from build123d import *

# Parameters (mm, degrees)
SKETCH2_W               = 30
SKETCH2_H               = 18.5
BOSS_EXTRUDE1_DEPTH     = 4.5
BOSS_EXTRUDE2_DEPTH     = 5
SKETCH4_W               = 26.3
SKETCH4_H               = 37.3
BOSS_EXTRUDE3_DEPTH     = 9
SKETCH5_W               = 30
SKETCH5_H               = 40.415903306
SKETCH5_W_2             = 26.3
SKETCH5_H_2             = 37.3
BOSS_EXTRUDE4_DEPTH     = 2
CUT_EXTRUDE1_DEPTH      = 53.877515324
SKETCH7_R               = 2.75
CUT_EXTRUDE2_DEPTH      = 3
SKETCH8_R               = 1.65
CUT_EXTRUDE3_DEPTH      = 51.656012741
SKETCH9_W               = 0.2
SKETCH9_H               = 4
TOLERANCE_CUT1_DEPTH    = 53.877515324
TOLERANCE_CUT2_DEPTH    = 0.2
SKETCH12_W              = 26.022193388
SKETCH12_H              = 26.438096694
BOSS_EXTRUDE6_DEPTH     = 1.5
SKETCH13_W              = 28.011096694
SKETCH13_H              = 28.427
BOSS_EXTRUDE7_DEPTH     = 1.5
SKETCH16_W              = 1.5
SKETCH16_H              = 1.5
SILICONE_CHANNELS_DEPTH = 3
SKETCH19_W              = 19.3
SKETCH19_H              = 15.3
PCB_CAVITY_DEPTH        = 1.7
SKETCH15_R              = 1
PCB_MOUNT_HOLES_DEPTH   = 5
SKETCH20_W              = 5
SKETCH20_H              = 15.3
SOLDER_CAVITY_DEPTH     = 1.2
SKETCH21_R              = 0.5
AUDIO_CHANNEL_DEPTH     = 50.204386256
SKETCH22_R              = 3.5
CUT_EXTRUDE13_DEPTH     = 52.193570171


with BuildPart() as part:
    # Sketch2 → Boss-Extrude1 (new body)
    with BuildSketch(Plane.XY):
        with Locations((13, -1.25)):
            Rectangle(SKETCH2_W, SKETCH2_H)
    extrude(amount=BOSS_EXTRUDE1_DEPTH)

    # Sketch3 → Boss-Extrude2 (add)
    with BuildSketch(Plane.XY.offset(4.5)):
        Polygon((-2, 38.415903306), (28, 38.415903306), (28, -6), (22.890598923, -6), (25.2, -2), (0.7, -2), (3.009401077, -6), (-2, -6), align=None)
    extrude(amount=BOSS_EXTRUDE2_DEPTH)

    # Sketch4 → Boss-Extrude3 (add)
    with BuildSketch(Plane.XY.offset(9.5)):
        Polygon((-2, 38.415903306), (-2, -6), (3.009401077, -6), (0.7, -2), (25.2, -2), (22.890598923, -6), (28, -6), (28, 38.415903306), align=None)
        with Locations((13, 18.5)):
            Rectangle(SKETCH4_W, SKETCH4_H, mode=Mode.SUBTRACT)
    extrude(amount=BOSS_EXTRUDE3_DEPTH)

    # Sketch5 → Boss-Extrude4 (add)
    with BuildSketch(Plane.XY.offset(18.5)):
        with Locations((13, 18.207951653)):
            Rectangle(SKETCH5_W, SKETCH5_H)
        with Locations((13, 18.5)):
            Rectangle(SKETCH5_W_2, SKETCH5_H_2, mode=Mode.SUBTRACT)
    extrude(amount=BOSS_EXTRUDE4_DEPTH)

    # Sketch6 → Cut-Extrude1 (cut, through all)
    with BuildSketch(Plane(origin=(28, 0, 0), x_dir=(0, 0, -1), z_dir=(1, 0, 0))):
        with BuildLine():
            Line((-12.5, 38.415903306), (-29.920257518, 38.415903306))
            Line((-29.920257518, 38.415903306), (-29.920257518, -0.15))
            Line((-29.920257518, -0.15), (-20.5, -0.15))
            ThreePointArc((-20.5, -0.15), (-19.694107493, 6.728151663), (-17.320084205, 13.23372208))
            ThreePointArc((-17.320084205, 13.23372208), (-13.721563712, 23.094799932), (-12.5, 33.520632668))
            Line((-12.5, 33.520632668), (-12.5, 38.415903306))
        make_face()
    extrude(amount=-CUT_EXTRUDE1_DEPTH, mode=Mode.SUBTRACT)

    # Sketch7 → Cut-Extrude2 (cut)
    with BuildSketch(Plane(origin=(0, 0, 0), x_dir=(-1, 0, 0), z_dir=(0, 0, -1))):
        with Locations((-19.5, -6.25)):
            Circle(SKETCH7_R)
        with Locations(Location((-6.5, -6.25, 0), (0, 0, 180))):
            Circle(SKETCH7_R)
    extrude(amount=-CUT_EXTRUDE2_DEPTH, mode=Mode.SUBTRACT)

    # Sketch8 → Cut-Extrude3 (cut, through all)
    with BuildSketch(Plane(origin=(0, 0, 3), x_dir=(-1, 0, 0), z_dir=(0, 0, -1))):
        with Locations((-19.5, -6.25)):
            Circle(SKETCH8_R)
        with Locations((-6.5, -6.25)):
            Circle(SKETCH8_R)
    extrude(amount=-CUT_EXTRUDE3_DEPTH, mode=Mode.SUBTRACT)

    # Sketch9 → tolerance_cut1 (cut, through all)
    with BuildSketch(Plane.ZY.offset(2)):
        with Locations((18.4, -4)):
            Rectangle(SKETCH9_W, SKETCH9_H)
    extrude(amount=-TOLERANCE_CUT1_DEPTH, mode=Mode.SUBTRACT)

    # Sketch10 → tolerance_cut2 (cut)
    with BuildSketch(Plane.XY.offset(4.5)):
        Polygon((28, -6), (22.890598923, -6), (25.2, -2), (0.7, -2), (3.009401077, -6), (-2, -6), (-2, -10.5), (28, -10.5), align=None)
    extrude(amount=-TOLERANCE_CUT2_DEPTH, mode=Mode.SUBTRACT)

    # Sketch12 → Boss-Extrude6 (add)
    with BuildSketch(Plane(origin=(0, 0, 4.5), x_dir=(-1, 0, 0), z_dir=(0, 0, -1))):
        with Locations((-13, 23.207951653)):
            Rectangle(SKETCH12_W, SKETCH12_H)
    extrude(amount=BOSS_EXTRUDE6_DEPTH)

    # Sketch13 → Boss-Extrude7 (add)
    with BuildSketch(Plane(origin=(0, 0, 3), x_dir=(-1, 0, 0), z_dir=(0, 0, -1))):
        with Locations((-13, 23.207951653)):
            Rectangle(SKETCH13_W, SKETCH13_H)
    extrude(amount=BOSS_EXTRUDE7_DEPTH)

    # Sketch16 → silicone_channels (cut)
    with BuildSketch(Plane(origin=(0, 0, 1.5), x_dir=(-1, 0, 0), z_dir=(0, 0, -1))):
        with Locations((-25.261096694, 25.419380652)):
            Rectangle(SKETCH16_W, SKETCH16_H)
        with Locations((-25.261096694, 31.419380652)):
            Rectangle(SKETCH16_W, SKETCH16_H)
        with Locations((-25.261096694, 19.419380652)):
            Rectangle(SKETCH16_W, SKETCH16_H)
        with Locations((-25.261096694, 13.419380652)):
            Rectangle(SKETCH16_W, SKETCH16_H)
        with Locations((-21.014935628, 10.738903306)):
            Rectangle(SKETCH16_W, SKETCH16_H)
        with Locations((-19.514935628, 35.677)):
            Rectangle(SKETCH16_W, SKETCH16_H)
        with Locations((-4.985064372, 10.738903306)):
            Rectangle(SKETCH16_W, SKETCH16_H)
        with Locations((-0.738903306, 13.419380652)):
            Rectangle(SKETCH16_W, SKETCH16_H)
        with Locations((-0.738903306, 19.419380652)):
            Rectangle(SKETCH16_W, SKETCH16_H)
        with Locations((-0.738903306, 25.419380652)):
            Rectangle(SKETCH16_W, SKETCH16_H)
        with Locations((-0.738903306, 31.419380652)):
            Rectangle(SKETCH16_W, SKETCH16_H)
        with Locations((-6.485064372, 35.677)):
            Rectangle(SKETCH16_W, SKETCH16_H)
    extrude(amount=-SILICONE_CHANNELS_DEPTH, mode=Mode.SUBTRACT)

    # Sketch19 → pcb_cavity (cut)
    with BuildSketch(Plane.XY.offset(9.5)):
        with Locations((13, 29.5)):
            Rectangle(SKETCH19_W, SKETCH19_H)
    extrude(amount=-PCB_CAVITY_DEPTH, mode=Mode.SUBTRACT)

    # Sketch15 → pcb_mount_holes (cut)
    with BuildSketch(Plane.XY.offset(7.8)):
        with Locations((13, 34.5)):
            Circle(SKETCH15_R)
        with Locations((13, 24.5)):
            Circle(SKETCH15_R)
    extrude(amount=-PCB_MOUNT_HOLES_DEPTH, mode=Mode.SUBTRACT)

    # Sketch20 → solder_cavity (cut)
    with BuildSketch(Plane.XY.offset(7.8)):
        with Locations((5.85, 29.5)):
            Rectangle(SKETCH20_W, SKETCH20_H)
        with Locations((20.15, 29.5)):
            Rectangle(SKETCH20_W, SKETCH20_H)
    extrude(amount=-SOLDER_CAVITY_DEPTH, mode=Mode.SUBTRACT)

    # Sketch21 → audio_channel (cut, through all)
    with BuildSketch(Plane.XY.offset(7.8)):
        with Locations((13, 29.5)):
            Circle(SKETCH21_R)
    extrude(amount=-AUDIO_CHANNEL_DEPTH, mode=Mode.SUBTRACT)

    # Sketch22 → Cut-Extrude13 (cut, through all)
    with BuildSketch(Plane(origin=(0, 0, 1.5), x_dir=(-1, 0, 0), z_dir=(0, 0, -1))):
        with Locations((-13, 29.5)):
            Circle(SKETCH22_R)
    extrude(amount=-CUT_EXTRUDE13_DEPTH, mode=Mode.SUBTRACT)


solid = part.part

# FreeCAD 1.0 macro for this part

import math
import FreeCAD as App
import Part
import Sketcher
Q = App.Units.Quantity


def add_polygon(sketch, points):
    """Adds a closed chain of lines whose ends are joined by coincident constraints."""
    first, n = sketch.GeometryCount, len(points)
    for a, b in zip(points, points[1:] + points[:1]):
        sketch.addGeometry(Part.LineSegment(App.Vector(*a, 0), App.Vector(*b, 0)), False)
    for i in range(n):
        sketch.addConstraint(Sketcher.Constraint("Coincident", first + i, 2, first + (i + 1) % n, 1))

doc = App.newDocument("Part")
body = doc.addObject("PartDesign::Body", "Body")

sketch1 = body.newObject("Sketcher::SketchObject", "Sketch")
sketch1.AttachmentSupport = (doc.getObject("XY_Plane"), [""])
sketch1.MapMode = "FlatFace"
add_polygon(sketch1, [(-2, 8), (-2, -10.5), (28, -10.5), (28, 8)])
sketch1.addConstraint([
    Sketcher.Constraint("Vertical", 0),
    Sketcher.Constraint("Horizontal", 1),
    Sketcher.Constraint("Vertical", 2),
    Sketcher.Constraint("Horizontal", 3),
    Sketcher.Constraint("DistanceX", 1, 1, 1, 2, 30.0),
    Sketcher.Constraint("DistanceY", 0, 2, 0, 1, 18.5),
    Sketcher.Constraint("DistanceX", 0, 2, -1, 1, 2.0),
    Sketcher.Constraint("DistanceY", -1, 1, 2, 2, 8.0),
])
pad1 = body.newObject("PartDesign::Pad", "Pad")
pad1.Profile = sketch1
pad1.Length = 4.5

sketch2 = body.newObject("Sketcher::SketchObject", "Sketch001")
sketch2.AttachmentSupport = (doc.getObject("XY_Plane"), [""])
sketch2.MapMode = "FlatFace"
sketch2.AttachmentOffset = App.Placement(App.Vector(0, 0, 4.5), App.Rotation())
add_polygon(sketch2, [(28, 38.415903), (-2, 38.415903), (-2, -6), (3.009401, -6), (0.7, -2), (25.2, -2), (22.890599, -6), (28, -6)])
sketch2.addConstraint([
    Sketcher.Constraint("Horizontal", 0),
    Sketcher.Constraint("Vertical", 1),
    Sketcher.Constraint("Horizontal", 2),
    Sketcher.Constraint("Horizontal", 4),
    Sketcher.Constraint("Horizontal", 6),
    Sketcher.Constraint("Vertical", 7),
    Sketcher.Constraint("Horizontal", 2, 2, 5, 2),
    Sketcher.Constraint("Equal", 3, 5),
    Sketcher.Constraint("DistanceX", 0, 2, 0, 1, 30.0),
    Sketcher.Constraint("Angle", 3, Q("120 deg")),
    Sketcher.Constraint("DistanceX", 4, 1, 4, 2, 24.5),
    Sketcher.Constraint("DistanceX", 0, 2, -1, 1, 2.0),
    Sketcher.Constraint("DistanceY", 1, 2, -1, 1, 6.0),
    Sketcher.Constraint("DistanceY", 3, 2, -1, 1, 2.0),
    Sketcher.Constraint("DistanceX", -1, 1, 3, 2, 0.7),
    Sketcher.Constraint("DistanceY", 1, 2, 1, 1, 44.415903),
])
pad2 = body.newObject("PartDesign::Pad", "Pad001")
pad2.Profile = sketch2
pad2.Length = 5

sketch3 = body.newObject("Sketcher::SketchObject", "Sketch002")
sketch3.AttachmentSupport = (doc.getObject("XY_Plane"), [""])
sketch3.MapMode = "FlatFace"
sketch3.AttachmentOffset = App.Placement(App.Vector(0, 0, 9.5), App.Rotation())
add_polygon(sketch3, [(-2, 38.415903), (-2, -6), (3.009401, -6), (0.7, -2), (25.2, -2), (22.890599, -6), (28, -6), (28, 38.415903)])
add_polygon(sketch3, [(26.15, -0.15), (-0.15, -0.15), (-0.15, 37.15), (26.15, 37.15)])
sketch3.addConstraint([
    Sketcher.Constraint("Vertical", 0),
    Sketcher.Constraint("Horizontal", 1),
    Sketcher.Constraint("Horizontal", 3),
    Sketcher.Constraint("Horizontal", 5),
    Sketcher.Constraint("Vertical", 6),
    Sketcher.Constraint("Horizontal", 7),
    Sketcher.Constraint("Horizontal", 8),
    Sketcher.Constraint("Vertical", 9),
    Sketcher.Constraint("Horizontal", 10),
    Sketcher.Constraint("Vertical", 11),
    Sketcher.Constraint("Horizontal", 1, 2, 4, 2),
    Sketcher.Constraint("Equal", 2, 4),
    Sketcher.Constraint("DistanceX", 7, 2, 7, 1, 30.0),
    Sketcher.Constraint("Angle", 2, Q("120 deg")),
    Sketcher.Constraint("DistanceX", 3, 1, 3, 2, 24.5),
    Sketcher.Constraint("DistanceX", 8, 2, 8, 1, 26.3),
    Sketcher.Constraint("DistanceY", 9, 1, 9, 2, 37.3),
    Sketcher.Constraint("DistanceX", 0, 2, -1, 1, 2.0),
    Sketcher.Constraint("DistanceY", 0, 2, -1, 1, 6.0),
    Sketcher.Constraint("DistanceY", 2, 2, -1, 1, 2.0),
    Sketcher.Constraint("DistanceX", -1, 1, 2, 2, 0.7),
    Sketcher.Constraint("DistanceX", 8, 2, -1, 1, 0.15),
    Sketcher.Constraint("DistanceY", 8, 2, -1, 1, 0.15),
    Sketcher.Constraint("DistanceY", 0, 2, 0, 1, 44.415903),
])
pad3 = body.newObject("PartDesign::Pad", "Pad002")
pad3.Profile = sketch3
pad3.Length = 9

sketch4 = body.newObject("Sketcher::SketchObject", "Sketch003")
sketch4.AttachmentSupport = (doc.getObject("XY_Plane"), [""])
sketch4.MapMode = "FlatFace"
sketch4.AttachmentOffset = App.Placement(App.Vector(0, 0, 18.5), App.Rotation())
add_polygon(sketch4, [(-2, 38.415903), (-2, -2), (28, -2), (28, 38.415903)])
add_polygon(sketch4, [(26.15, -0.15), (-0.15, -0.15), (-0.15, 37.15), (26.15, 37.15)])
sketch4.addConstraint([
    Sketcher.Constraint("Vertical", 0),
    Sketcher.Constraint("Horizontal", 1),
    Sketcher.Constraint("Vertical", 2),
    Sketcher.Constraint("Horizontal", 3),
    Sketcher.Constraint("Horizontal", 4),
    Sketcher.Constraint("Vertical", 5),
    Sketcher.Constraint("Horizontal", 6),
    Sketcher.Constraint("Vertical", 7),
    Sketcher.Constraint("DistanceX", 1, 1, 1, 2, 30.0),
    Sketcher.Constraint("DistanceX", 4, 2, 4, 1, 26.3),
    Sketcher.Constraint("DistanceY", 5, 1, 5, 2, 37.3),
    Sketcher.Constraint("DistanceX", 0, 2, -1, 1, 2.0),
    Sketcher.Constraint("DistanceY", 0, 2, -1, 1, 2.0),
    Sketcher.Constraint("DistanceX", 4, 2, -1, 1, 0.15),
    Sketcher.Constraint("DistanceY", 4, 2, -1, 1, 0.15),
    Sketcher.Constraint("DistanceY", 0, 2, 0, 1, 40.415903),
])
pad4 = body.newObject("PartDesign::Pad", "Pad003")
pad4.Profile = sketch4
pad4.Length = 2

sketch5 = body.newObject("Sketcher::SketchObject", "Sketch004")
sketch5.AttachmentSupport = (doc.getObject("YZ_Plane"), [""])
sketch5.MapMode = "FlatFace"
sketch5.AttachmentOffset = App.Placement(App.Vector(0, 0, 28), App.Rotation())
sketch5.addGeometry([
    Part.LineSegment(App.Vector(38.415903, 12.5, 0), App.Vector(38.415903, 29.920258, 0)),
    Part.LineSegment(App.Vector(38.415903, 29.920258, 0), App.Vector(-0.15, 29.920258, 0)),
    Part.LineSegment(App.Vector(-0.15, 29.920258, 0), App.Vector(-0.15, 20.5, 0)),
    Part.ArcOfCircle(Part.Circle(App.Vector(-0.15, -9.254857, 0), App.Vector(0, 0, 1), 29.754857), math.radians(63.269175), math.radians(90)),
    Part.ArcOfCircle(Part.Circle(App.Vector(33.520633, 57.602112, 0), App.Vector(0, 0, 1), 45.102112), math.radians(-116.730825), math.radians(-90)),
    Part.LineSegment(App.Vector(33.520633, 12.5, 0), App.Vector(38.415903, 12.5, 0)),
], False)
sketch5.addConstraint([
    Sketcher.Constraint("Coincident", 0, 2, 1, 1),
    Sketcher.Constraint("Coincident", 1, 2, 2, 1),
    Sketcher.Constraint("Coincident", 2, 2, 3, 2),
    Sketcher.Constraint("Tangent", 3, 1, 4, 1),
    Sketcher.Constraint("Tangent", 4, 2, 5, 1),
    Sketcher.Constraint("Coincident", 5, 2, 0, 1),
    Sketcher.Constraint("Vertical", 0),
    Sketcher.Constraint("Horizontal", 1),
    Sketcher.Constraint("Vertical", 2),
    Sketcher.Constraint("Horizontal", 5),
    Sketcher.Constraint("Vertical", 3, 3, 1, 2),
    Sketcher.Constraint("DistanceY", 4, 2, 2, 2, 8.0),
    Sketcher.Constraint("DistanceY", -1, 1, 2, 2, 20.5),
    Sketcher.Constraint("DistanceX", 3, 3, -1, 1, 0.15),
    Sketcher.Constraint("Radius", 4, 45.102112),
    Sketcher.Constraint("Radius", 3, 29.754857),
    Sketcher.Constraint("DistanceX", 5, 1, 5, 2, 4.895271),
    Sketcher.Constraint("DistanceY", 0, 1, 0, 2, 17.420258),
])
pocket1 = body.newObject("PartDesign::Pocket", "Pocket")
pocket1.Profile = sketch5
pocket1.Type = "ThroughAll"

sketch6 = body.newObject("Sketcher::SketchObject", "Sketch005")
sketch6.AttachmentSupport = (doc.getObject("XY_Plane"), [""])
sketch6.MapMode = "FlatFace"
sketch6.addGeometry([
    Part.Circle(App.Vector(19.5, -6.25, 0), App.Vector(0, 0, 1), 2.75),
    Part.Circle(App.Vector(6.5, -6.25, 0), App.Vector(0, 0, 1), 2.75),
], False)
sketch6.addConstraint([
    Sketcher.Constraint("Equal", 0, 1),
    Sketcher.Constraint("Horizontal", 0, 3, 1, 3),
    Sketcher.Constraint("Diameter", 0, 5.5),
    Sketcher.Constraint("DistanceX", 1, 3, 0, 3, 13.0),
    Sketcher.Constraint("DistanceX", -1, 1, 0, 3, 19.5),
    Sketcher.Constraint("DistanceY", 0, 3, -1, 1, 6.25),
])
pocket2 = body.newObject("PartDesign::Pocket", "Pocket001")
pocket2.Profile = sketch6
pocket2.Length = 3
pocket2.Reversed = True

sketch7 = body.newObject("Sketcher::SketchObject", "Sketch006")
sketch7.AttachmentSupport = (doc.getObject("XY_Plane"), [""])
sketch7.MapMode = "FlatFace"
sketch7.AttachmentOffset = App.Placement(App.Vector(0, 0, 3), App.Rotation())
sketch7.addGeometry([
    Part.Circle(App.Vector(19.5, -6.25, 0), App.Vector(0, 0, 1), 1.65),
    Part.Circle(App.Vector(6.5, -6.25, 0), App.Vector(0, 0, 1), 1.65),
], False)
sketch7.addConstraint([
    Sketcher.Constraint("Equal", 0, 1),
    Sketcher.Constraint("Horizontal", 0, 3, 1, 3),
    Sketcher.Constraint("Diameter", 0, 3.3),
    Sketcher.Constraint("DistanceX", 1, 3, 0, 3, 13.0),
    Sketcher.Constraint("DistanceX", -1, 1, 0, 3, 19.5),
    Sketcher.Constraint("DistanceY", 0, 3, -1, 1, 6.25),
])
pocket3 = body.newObject("PartDesign::Pocket", "Pocket002")
pocket3.Profile = sketch7
pocket3.Type = "ThroughAll"
pocket3.Reversed = True

sketch8 = body.newObject("Sketcher::SketchObject", "Sketch007")
sketch8.AttachmentSupport = (doc.getObject("YZ_Plane"), [""])
sketch8.MapMode = "FlatFace"
sketch8.AttachmentOffset = App.Placement(App.Vector(0, 0, -2), App.Rotation())
add_polygon(sketch8, [(-2, 18.3), (-6, 18.3), (-6, 18.5), (-2, 18.5)])
sketch8.addConstraint([
    Sketcher.Constraint("Horizontal", 0),
    Sketcher.Constraint("Vertical", 1),
    Sketcher.Constraint("Horizontal", 2),
    Sketcher.Constraint("Vertical", 3),
    Sketcher.Constraint("DistanceX", 0, 2, 0, 1, 4.0),
    Sketcher.Constraint("DistanceY", 1, 1, 1, 2, 0.2),
    Sketcher.Constraint("DistanceX", 0, 2, -1, 1, 6.0),
    Sketcher.Constraint("DistanceY", -1, 1, 0, 2, 18.3),
])
pocket4 = body.newObject("PartDesign::Pocket", "Pocket003")
pocket4.Profile = sketch8
pocket4.Type = "ThroughAll"
pocket4.Reversed = True

sketch9 = body.newObject("Sketcher::SketchObject", "Sketch008")
sketch9.AttachmentSupport = (doc.getObject("XY_Plane"), [""])
sketch9.MapMode = "FlatFace"
sketch9.AttachmentOffset = App.Placement(App.Vector(0, 0, 4.5), App.Rotation())
add_polygon(sketch9, [(28, -6), (22.890599, -6), (25.2, -2), (0.7, -2), (3.009401, -6), (-2, -6), (-2, -10.5), (28, -10.5)])
sketch9.addConstraint([
    Sketcher.Constraint("Horizontal", 0),
    Sketcher.Constraint("Horizontal", 2),
    Sketcher.Constraint("Horizontal", 4),
    Sketcher.Constraint("Vertical", 5),
    Sketcher.Constraint("Horizontal", 6),
    Sketcher.Constraint("Vertical", 7),
    Sketcher.Constraint("Horizontal", 0, 2, 3, 2),
    Sketcher.Constraint("Equal", 1, 3),
    Sketcher.Constraint("DistanceX", 6, 1, 6, 2, 30.0),
    Sketcher.Constraint("Angle", 1, Q("60 deg")),
    Sketcher.Constraint("DistanceX", 2, 2, 2, 1, 24.5),
    Sketcher.Constraint("DistanceY", 5, 2, 5, 1, 4.5),
    Sketcher.Constraint("DistanceY", 0, 2, -1, 1, 6.0),
    Sketcher.Constraint("DistanceY", 1, 2, -1, 1, 2.0),
    Sketcher.Constraint("DistanceX", 4, 2, -1, 1, 2.0),
    Sketcher.Constraint("DistanceX", -1, 1, 1, 2, 25.2),
])
pocket5 = body.newObject("PartDesign::Pocket", "Pocket004")
pocket5.Profile = sketch9
pocket5.Length = 0.2

sketch10 = body.newObject("Sketcher::SketchObject", "Sketch009")
sketch10.AttachmentSupport = (doc.getObject("XY_Plane"), [""])
sketch10.MapMode = "FlatFace"
sketch10.AttachmentOffset = App.Placement(App.Vector(0, 0, 4.5), App.Rotation())
add_polygon(sketch10, [(26.011097, 36.427), (26.011097, 9.988903), (-0.011097, 9.988903), (-0.011097, 36.427)])
sketch10.addConstraint([
    Sketcher.Constraint("Vertical", 0),
    Sketcher.Constraint("Horizontal", 1),
    Sketcher.Constraint("Vertical", 2),
    Sketcher.Constraint("Horizontal", 3),
    Sketcher.Constraint("DistanceY", -1, 1, 2, 2, 36.427),
    Sketcher.Constraint("DistanceX", 1, 2, 1, 1, 26.022193),
    Sketcher.Constraint("DistanceY", 0, 2, 0, 1, 26.438097),
    Sketcher.Constraint("DistanceX", -1, 1, 0, 2, 26.011097),
])
pad5 = body.newObject("PartDesign::Pad", "Pad004")
pad5.Profile = sketch10
pad5.Length = 1.5
pad5.Reversed = True

sketch11 = body.newObject("Sketcher::SketchObject", "Sketch010")
sketch11.AttachmentSupport = (doc.getObject("XY_Plane"), [""])
sketch11.MapMode = "FlatFace"
sketch11.AttachmentOffset = App.Placement(App.Vector(0, 0, 3), App.Rotation())
add_polygon(sketch11, [(27.005548, 37.421452), (27.005548, 8.994452), (-1.005548, 8.994452), (-1.005548, 37.421452)])
sketch11.addConstraint([
    Sketcher.Constraint("Vertical", 0),
    Sketcher.Constraint("Horizontal", 1),
    Sketcher.Constraint("Vertical", 2),
    Sketcher.Constraint("Horizontal", 3),
    Sketcher.Constraint("DistanceY", 0, 2, 0, 1, 28.427),
    Sketcher.Constraint("DistanceX", 1, 2, 1, 1, 28.011097),
    Sketcher.Constraint("DistanceX", -1, 1, 0, 2, 27.005548),
    Sketcher.Constraint("DistanceY", -1, 1, 0, 2, 8.994452),
])
pad6 = body.newObject("PartDesign::Pad", "Pad005")
pad6.Profile = sketch11
pad6.Length = 1.5
pad6.Reversed = True

sketch12 = body.newObject("Sketcher::SketchObject", "Sketch011")
sketch12.AttachmentSupport = (doc.getObject("XY_Plane"), [""])
sketch12.MapMode = "FlatFace"
sketch12.AttachmentOffset = App.Placement(App.Vector(0, 0, 1.5), App.Rotation())
add_polygon(sketch12, [(26.011097, 26.169381), (26.011097, 24.669381), (24.511097, 24.669381), (24.511097, 26.169381)])
add_polygon(sketch12, [(26.011097, 32.169381), (26.011097, 30.669381), (24.511097, 30.669381), (24.511097, 32.169381)])
add_polygon(sketch12, [(26.011097, 20.169381), (26.011097, 18.669381), (24.511097, 18.669381), (24.511097, 20.169381)])
add_polygon(sketch12, [(26.011097, 14.169381), (26.011097, 12.669381), (24.511097, 12.669381), (24.511097, 14.169381)])
add_polygon(sketch12, [(21.764936, 11.488903), (21.764936, 9.988903), (20.264936, 9.988903), (20.264936, 11.488903)])
add_polygon(sketch12, [(20.264936, 36.427), (20.264936, 34.927), (18.764936, 34.927), (18.764936, 36.427)])
add_polygon(sketch12, [(5.735064, 11.488903), (5.735064, 9.988903), (4.235064, 9.988903), (4.235064, 11.488903)])
add_polygon(sketch12, [(1.488903, 14.169381), (1.488903, 12.669381), (-0.011097, 12.669381), (-0.011097, 14.169381)])
add_polygon(sketch12, [(1.488903, 20.169381), (1.488903, 18.669381), (-0.011097, 18.669381), (-0.011097, 20.169381)])
add_polygon(sketch12, [(1.488903, 26.169381), (1.488903, 24.669381), (-0.011097, 24.669381), (-0.011097, 26.169381)])
add_polygon(sketch12, [(1.488903, 32.169381), (1.488903, 30.669381), (-0.011097, 30.669381), (-0.011097, 32.169381)])
add_polygon(sketch12, [(7.235064, 36.427), (7.235064, 34.927), (5.735064, 34.927), (5.735064, 36.427)])
sketch12.addConstraint([
    Sketcher.Constraint("Vertical", 0),
    Sketcher.Constraint("Horizontal", 1),
    Sketcher.Constraint("Vertical", 2),
    Sketcher.Constraint("Horizontal", 3),
    Sketcher.Constraint("Vertical", 4),
    Sketcher.Constraint("Horizontal", 5),
    Sketcher.Constraint("Vertical", 6),
    Sketcher.Constraint("Horizontal", 7),
    Sketcher.Constraint("Vertical", 8),
    Sketcher.Constraint("Horizontal", 9),
    Sketcher.Constraint("Vertical", 10),
    Sketcher.Constraint("Horizontal", 11),
    Sketcher.Constraint("Vertical", 12),
    Sketcher.Constraint("Horizontal", 13),
    Sketcher.Constraint("Vertical", 14),
    Sketcher.Constraint("Horizontal", 15),
    Sketcher.Constraint("Vertical", 16),
    Sketcher.Constraint("Horizontal", 17),
    Sketcher.Constraint("Vertical", 18),
    Sketcher.Constraint("Horizontal", 19),
    Sketcher.Constraint("Vertical", 20),
    Sketcher.Constraint("Horizontal", 21),
    Sketcher.Constraint("Vertical", 22),
    Sketcher.Constraint("Horizontal", 23),
    Sketcher.Constraint("Vertical", 24),
    Sketcher.Constraint("Horizontal", 25),
    Sketcher.Constraint("Vertical", 26),
    Sketcher.Constraint("Horizontal", 27),
    Sketcher.Constraint("Vertical", 28),
    Sketcher.Constraint("Horizontal", 29),
    Sketcher.Constraint("Vertical", 30),
    Sketcher.Constraint("Horizontal", 31),
    Sketcher.Constraint("Vertical", 32),
    Sketcher.Constraint("Horizontal", 33),
    Sketcher.Constraint("Vertical", 34),
    Sketcher.Constraint("Horizontal", 35),
    Sketcher.Constraint("Vertical", 36),
    Sketcher.Constraint("Horizontal", 37),
    Sketcher.Constraint("Vertical", 38),
    Sketcher.Constraint("Horizontal", 39),
    Sketcher.Constraint("Vertical", 40),
    Sketcher.Constraint("Horizontal", 41),
    Sketcher.Constraint("Vertical", 42),
    Sketcher.Constraint("Horizontal", 43),
    Sketcher.Constraint("Vertical", 44),
    Sketcher.Constraint("Horizontal", 45),
    Sketcher.Constraint("Vertical", 46),
    Sketcher.Constraint("Horizontal", 47),
    Sketcher.Constraint("Horizontal", 17, 2, 24, 2),
    Sketcher.Constraint("Horizontal", 19, 2, 26, 2),
    Sketcher.Constraint("Horizontal", 13, 2, 28, 2),
    Sketcher.Constraint("Horizontal", 15, 2, 30, 2),
    Sketcher.Constraint("Horizontal", 9, 2, 32, 2),
    Sketcher.Constraint("Horizontal", 11, 2, 34, 2),
    Sketcher.Constraint("Horizontal", 1, 2, 36, 2),
    Sketcher.Constraint("Horizontal", 3, 2, 38, 2),
    Sketcher.Constraint("Horizontal", 5, 2, 40, 2),
    Sketcher.Constraint("Horizontal", 7, 2, 42, 2),
    Sketcher.Constraint("Horizontal", 21, 2, 44, 2),
    Sketcher.Constraint("Horizontal", 23, 2, 46, 2),
    Sketcher.Constraint("Vertical", 3, 2, 4, 2),
    Sketcher.Constraint("Vertical", 2, 2, 5, 2),
    Sketcher.Constraint("Vertical", 7, 2, 8, 2),
    Sketcher.Constraint("Vertical", 6, 2, 9, 2),
    Sketcher.Constraint("Vertical", 11, 2, 12, 2),
    Sketcher.Constraint("Vertical", 10, 2, 13, 2),
    Sketcher.Constraint("Vertical", 18, 2, 20, 2),
    Sketcher.Constraint("Vertical", 31, 2, 32, 2),
    Sketcher.Constraint("Vertical", 30, 2, 33, 2),
    Sketcher.Constraint("Vertical", 35, 2, 36, 2),
    Sketcher.Constraint("Vertical", 34, 2, 37, 2),
    Sketcher.Constraint("Vertical", 39, 2, 40, 2),
    Sketcher.Constraint("Vertical", 38, 2, 41, 2),
    Sketcher.Constraint("Vertical", 27, 2, 45, 2),
    Sketcher.Constraint("Equal", 15, 17),
    Sketcher.Constraint("Equal", 19, 21),
    Sketcher.Constraint("Equal", 23, 25),
    Sketcher.Constraint("Equal", 27, 29),
    Sketcher.Constraint("Equal", 43, 45),
    Sketcher.Constraint("Equal", 47, 0),
    Sketcher.Constraint("Equal", 2, 4),
    Sketcher.Constraint("Equal", 6, 8),
    Sketcher.Constraint("Equal", 10, 12),
    Sketcher.Constraint("Equal", 14, 16),
    Sketcher.Constraint("Equal", 18, 20),
    Sketcher.Constraint("DistanceX", 1, 2, 1, 1, 1.5),
    Sketcher.Constraint("DistanceY", 0, 2, 4, 2, 6.0),
    Sketcher.Constraint("DistanceY", 8, 2, 0, 2, 6.0),
    Sketcher.Constraint("DistanceY", 12, 2, 8, 2, 6.0),
    Sketcher.Constraint("DistanceY", -1, 1, 20, 2, 34.927),
    Sketcher.Constraint("DistanceY", -1, 1, 0, 2, 24.669381),
    Sketcher.Constraint("DistanceX", 16, 2, 13, 2, 2.746161),
    Sketcher.Constraint("DistanceX", 24, 2, 17, 2, 14.529871),
    Sketcher.Constraint("DistanceX", 28, 2, 26, 2, 2.746161),
    Sketcher.Constraint("DistanceX", -1, 1, 0, 2, 26.011097),
    Sketcher.Constraint("DistanceY", -1, 1, 16, 2, 9.988903),
])
pocket6 = body.newObject("PartDesign::Pocket", "Pocket005")
pocket6.Profile = sketch12
pocket6.Length = 3
pocket6.Reversed = True

sketch13 = body.newObject("Sketcher::SketchObject", "Sketch012")
sketch13.AttachmentSupport = (doc.getObject("XY_Plane"), [""])
sketch13.MapMode = "FlatFace"
sketch13.AttachmentOffset = App.Placement(App.Vector(0, 0, 9.5), App.Rotation())
add_polygon(sketch13, [(3.35, 37.15), (3.35, 21.85), (22.65, 21.85), (22.65, 37.15)])
sketch13.addConstraint([
    Sketcher.Constraint("Vertical", 0),
    Sketcher.Constraint("Horizontal", 1),
    Sketcher.Constraint("Vertical", 2),
    Sketcher.Constraint("Horizontal", 3),
    Sketcher.Constraint("DistanceX", 1, 1, 1, 2, 19.3),
    Sketcher.Constraint("DistanceY", 0, 2, 0, 1, 15.3),
    Sketcher.Constraint("DistanceX", -1, 1, 0, 2, 3.35),
    Sketcher.Constraint("DistanceY", -1, 1, 0, 2, 21.85),
])
pocket7 = body.newObject("PartDesign::Pocket", "Pocket006")
pocket7.Profile = sketch13
pocket7.Length = 1.7

sketch14 = body.newObject("Sketcher::SketchObject", "Sketch013")
sketch14.AttachmentSupport = (doc.getObject("XY_Plane"), [""])
sketch14.MapMode = "FlatFace"
sketch14.AttachmentOffset = App.Placement(App.Vector(0, 0, 7.8), App.Rotation())
sketch14.addGeometry([
    Part.Circle(App.Vector(13, 34.5, 0), App.Vector(0, 0, 1), 1),
    Part.Circle(App.Vector(13, 24.5, 0), App.Vector(0, 0, 1), 1),
], False)
sketch14.addConstraint([
    Sketcher.Constraint("Equal", 0, 1),
    Sketcher.Constraint("Vertical", 0, 3, 1, 3),
    Sketcher.Constraint("Diameter", 0, 2.0),
    Sketcher.Constraint("DistanceX", -1, 1, 0, 3, 13.0),
    Sketcher.Constraint("DistanceY", 1, 3, 0, 3, 10.0),
    Sketcher.Constraint("DistanceY", -1, 1, 0, 3, 34.5),
])
pocket8 = body.newObject("PartDesign::Pocket", "Pocket007")
pocket8.Profile = sketch14
pocket8.Length = 5

sketch15 = body.newObject("Sketcher::SketchObject", "Sketch014")
sketch15.AttachmentSupport = (doc.getObject("XY_Plane"), [""])
sketch15.MapMode = "FlatFace"
sketch15.AttachmentOffset = App.Placement(App.Vector(0, 0, 7.8), App.Rotation())
add_polygon(sketch15, [(3.35, 37.15), (3.35, 21.85), (8.35, 21.85), (8.35, 37.15)])
add_polygon(sketch15, [(17.65, 37.15), (17.65, 21.85), (22.65, 21.85), (22.65, 37.15)])
sketch15.addConstraint([
    Sketcher.Constraint("Vertical", 0),
    Sketcher.Constraint("Horizontal", 1),
    Sketcher.Constraint("Vertical", 2),
    Sketcher.Constraint("Horizontal", 3),
    Sketcher.Constraint("Vertical", 4),
    Sketcher.Constraint("Horizontal", 5),
    Sketcher.Constraint("Vertical", 6),
    Sketcher.Constraint("Horizontal", 7),
    Sketcher.Constraint("Horizontal", 1, 2, 4, 2),
    Sketcher.Constraint("Horizontal", 3, 2, 6, 2),
    Sketcher.Constraint("Equal", 3, 5),
    Sketcher.Constraint("DistanceX", 1, 1, 1, 2, 5.0),
    Sketcher.Constraint("DistanceY", 0, 2, 0, 1, 15.3),
    Sketcher.Constraint("DistanceX", 1, 2, 4, 2, 9.3),
    Sketcher.Constraint("DistanceX", -1, 1, 0, 2, 3.35),
    Sketcher.Constraint("DistanceY", -1, 1, 0, 2, 21.85),
])
pocket9 = body.newObject("PartDesign::Pocket", "Pocket008")
pocket9.Profile = sketch15
pocket9.Length = 1.2

sketch16 = body.newObject("Sketcher::SketchObject", "Sketch015")
sketch16.AttachmentSupport = (doc.getObject("XY_Plane"), [""])
sketch16.MapMode = "FlatFace"
sketch16.AttachmentOffset = App.Placement(App.Vector(0, 0, 7.8), App.Rotation())
sketch16.addGeometry(Part.Circle(App.Vector(13, 29.5, 0), App.Vector(0, 0, 1), 0.5), False)
sketch16.addConstraint([
    Sketcher.Constraint("Diameter", 0, 1.0),
    Sketcher.Constraint("DistanceX", -1, 1, 0, 3, 13.0),
    Sketcher.Constraint("DistanceY", -1, 1, 0, 3, 29.5),
])
pocket10 = body.newObject("PartDesign::Pocket", "Pocket009")
pocket10.Profile = sketch16
pocket10.Type = "ThroughAll"

sketch17 = body.newObject("Sketcher::SketchObject", "Sketch016")
sketch17.AttachmentSupport = (doc.getObject("XY_Plane"), [""])
sketch17.MapMode = "FlatFace"
sketch17.AttachmentOffset = App.Placement(App.Vector(0, 0, 1.5), App.Rotation())
sketch17.addGeometry(Part.Circle(App.Vector(13, 29.5, 0), App.Vector(0, 0, 1), 3.5), False)
sketch17.addConstraint([
    Sketcher.Constraint("Diameter", 0, 7.0),
    Sketcher.Constraint("DistanceX", -1, 1, 0, 3, 13.0),
    Sketcher.Constraint("DistanceY", -1, 1, 0, 3, 29.5),
])
pocket11 = body.newObject("PartDesign::Pocket", "Pocket010")
pocket11.Profile = sketch17
pocket11.Type = "ThroughAll"
pocket11.Reversed = True

doc.recompute()
